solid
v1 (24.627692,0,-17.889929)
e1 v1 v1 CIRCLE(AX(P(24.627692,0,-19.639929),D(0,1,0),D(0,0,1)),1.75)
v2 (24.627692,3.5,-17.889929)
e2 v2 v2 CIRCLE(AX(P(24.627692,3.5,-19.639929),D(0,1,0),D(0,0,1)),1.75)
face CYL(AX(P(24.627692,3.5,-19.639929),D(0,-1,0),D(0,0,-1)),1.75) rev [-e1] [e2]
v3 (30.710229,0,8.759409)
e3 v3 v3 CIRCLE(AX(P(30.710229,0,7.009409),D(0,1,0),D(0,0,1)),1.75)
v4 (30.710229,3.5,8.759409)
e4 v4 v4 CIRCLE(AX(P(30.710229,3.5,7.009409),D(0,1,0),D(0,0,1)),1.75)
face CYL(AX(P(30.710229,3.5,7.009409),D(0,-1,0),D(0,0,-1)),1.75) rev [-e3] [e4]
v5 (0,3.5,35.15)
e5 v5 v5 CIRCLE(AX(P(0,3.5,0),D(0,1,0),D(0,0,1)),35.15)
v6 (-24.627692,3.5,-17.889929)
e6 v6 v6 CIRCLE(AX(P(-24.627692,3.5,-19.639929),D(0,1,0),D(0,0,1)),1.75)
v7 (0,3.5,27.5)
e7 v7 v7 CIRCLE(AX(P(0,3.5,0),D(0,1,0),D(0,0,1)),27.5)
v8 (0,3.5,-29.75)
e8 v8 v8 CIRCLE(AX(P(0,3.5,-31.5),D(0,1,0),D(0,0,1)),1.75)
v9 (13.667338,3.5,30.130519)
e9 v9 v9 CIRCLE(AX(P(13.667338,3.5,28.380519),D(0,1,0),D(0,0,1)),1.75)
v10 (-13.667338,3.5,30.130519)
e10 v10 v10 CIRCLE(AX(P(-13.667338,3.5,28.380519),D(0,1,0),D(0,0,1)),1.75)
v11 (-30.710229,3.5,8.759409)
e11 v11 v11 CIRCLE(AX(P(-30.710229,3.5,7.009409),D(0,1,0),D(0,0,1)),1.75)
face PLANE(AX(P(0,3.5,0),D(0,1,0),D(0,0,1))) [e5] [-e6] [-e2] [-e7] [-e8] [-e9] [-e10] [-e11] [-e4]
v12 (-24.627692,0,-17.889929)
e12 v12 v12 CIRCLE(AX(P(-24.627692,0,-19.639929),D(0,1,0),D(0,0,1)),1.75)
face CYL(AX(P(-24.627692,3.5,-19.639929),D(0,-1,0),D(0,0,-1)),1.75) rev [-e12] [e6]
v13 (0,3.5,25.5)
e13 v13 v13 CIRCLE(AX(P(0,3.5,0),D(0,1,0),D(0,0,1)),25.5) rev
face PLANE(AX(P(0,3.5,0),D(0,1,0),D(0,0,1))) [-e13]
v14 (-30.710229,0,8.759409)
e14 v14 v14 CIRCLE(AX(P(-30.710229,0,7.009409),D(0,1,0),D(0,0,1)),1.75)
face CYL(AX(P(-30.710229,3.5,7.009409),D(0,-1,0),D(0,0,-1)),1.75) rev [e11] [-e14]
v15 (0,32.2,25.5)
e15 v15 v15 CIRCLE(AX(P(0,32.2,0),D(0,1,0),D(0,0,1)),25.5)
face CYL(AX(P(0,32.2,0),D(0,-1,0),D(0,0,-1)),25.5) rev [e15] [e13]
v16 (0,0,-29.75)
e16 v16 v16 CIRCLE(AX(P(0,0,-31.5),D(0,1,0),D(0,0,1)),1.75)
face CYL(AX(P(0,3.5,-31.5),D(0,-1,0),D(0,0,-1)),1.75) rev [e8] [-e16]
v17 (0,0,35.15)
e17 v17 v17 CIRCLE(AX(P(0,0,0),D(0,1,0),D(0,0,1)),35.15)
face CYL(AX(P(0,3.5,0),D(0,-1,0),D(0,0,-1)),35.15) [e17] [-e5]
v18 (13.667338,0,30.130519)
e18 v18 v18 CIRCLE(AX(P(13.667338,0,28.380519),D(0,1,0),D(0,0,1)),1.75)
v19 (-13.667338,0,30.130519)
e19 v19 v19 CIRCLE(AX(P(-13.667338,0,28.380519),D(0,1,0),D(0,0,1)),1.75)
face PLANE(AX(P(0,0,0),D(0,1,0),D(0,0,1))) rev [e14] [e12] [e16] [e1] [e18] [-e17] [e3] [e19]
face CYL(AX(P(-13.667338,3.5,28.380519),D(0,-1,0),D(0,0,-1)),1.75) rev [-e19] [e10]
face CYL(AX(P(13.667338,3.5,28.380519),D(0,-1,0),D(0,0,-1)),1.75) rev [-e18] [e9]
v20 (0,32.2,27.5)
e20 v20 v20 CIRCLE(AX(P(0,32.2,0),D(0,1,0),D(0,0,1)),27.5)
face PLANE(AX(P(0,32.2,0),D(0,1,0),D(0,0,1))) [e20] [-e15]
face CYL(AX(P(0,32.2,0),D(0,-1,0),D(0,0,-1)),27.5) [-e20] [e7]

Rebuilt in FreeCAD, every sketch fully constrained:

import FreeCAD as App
import Part
import Sketcher

doc = App.newDocument("Part")
body = doc.addObject("PartDesign::Body", "Body")

sketch1 = doc.addObject("Sketcher::SketchObject", "Sketch")
body.addObject(sketch1)
sketch1.AttachmentSupport = (doc.XZ_Plane, [""])
sketch1.MapMode = "FlatFace"
sketch1.addGeometry(Part.Circle(App.Vector(0, 0, 0), App.Vector(0, 0, 1), 35.1), False)
sketch1.addGeometry(Part.Circle(App.Vector(-13.7, 28.4, 0), App.Vector(0, 0, 1), 1.8), False)
sketch1.addGeometry(Part.Circle(App.Vector(-30.7, 7, 0), App.Vector(0, 0, 1), 1.8), False)
sketch1.addGeometry(Part.Circle(App.Vector(13.7, 28.4, 0), App.Vector(0, 0, 1), 1.8), False)
sketch1.addGeometry(Part.Circle(App.Vector(30.7, 7, 0), App.Vector(0, 0, 1), 1.8), False)
sketch1.addGeometry(Part.Circle(App.Vector(-24.6, -19.6, 0), App.Vector(0, 0, 1), 1.8), False)
sketch1.addGeometry(Part.Circle(App.Vector(0, -31.5, 0), App.Vector(0, 0, 1), 1.8), False)
sketch1.addGeometry(Part.Circle(App.Vector(24.6, -19.6, 0), App.Vector(0, 0, 1), 1.8), False)
sketch1.addConstraint(Sketcher.Constraint("Coincident", 0, 3, -1, 1))
sketch1.addConstraint(Sketcher.Constraint("Equal", 1, 2))
sketch1.addConstraint(Sketcher.Constraint("Equal", 2, 3))
sketch1.addConstraint(Sketcher.Constraint("Equal", 3, 4))
sketch1.addConstraint(Sketcher.Constraint("Equal", 4, 5))
sketch1.addConstraint(Sketcher.Constraint("Equal", 5, 6))
sketch1.addConstraint(Sketcher.Constraint("Equal", 6, 7))
sketch1.addConstraint(Sketcher.Constraint("Symmetric", 1, 3, 3, 3, -2))
sketch1.addConstraint(Sketcher.Constraint("Symmetric", 2, 3, 4, 3, -2))
sketch1.addConstraint(Sketcher.Constraint("Symmetric", 5, 3, 7, 3, -2))
sketch1.addConstraint(Sketcher.Constraint("PointOnObject", 6, 3, -2))
sketch1.addConstraint(Sketcher.Constraint("Diameter", 0, 70.3))
sketch1.addConstraint(Sketcher.Constraint("Diameter", 1, 3.5))
sketch1.addConstraint(Sketcher.Constraint("DistanceY", 6, 3, -1, 1, 31.5))
sketch1.addConstraint(Sketcher.Constraint("DistanceY", -1, 1, 1, 3, 28.380519))
sketch1.addConstraint(Sketcher.Constraint("DistanceX", 2, 3, -1, 1, 30.710229))
sketch1.addConstraint(Sketcher.Constraint("DistanceY", -1, 1, 2, 3, 7.009409))
sketch1.addConstraint(Sketcher.Constraint("DistanceX", 5, 3, -1, 1, 24.627692))
sketch1.addConstraint(Sketcher.Constraint("DistanceY", 5, 3, -1, 1, 19.639929))
sketch1.addConstraint(Sketcher.Constraint("DistanceX", 2, 3, 1, 3, 17.042891))
pad1 = doc.addObject("PartDesign::Pad", "Pad")
body.addObject(pad1)
pad1.Profile = sketch1
pad1.Length = 3.5
pad1.Reversed = True

sketch2 = doc.addObject("Sketcher::SketchObject", "Sketch001")
body.addObject(sketch2)
sketch2.AttachmentSupport = (doc.XZ_Plane, [""])
sketch2.MapMode = "FlatFace"
sketch2.AttachmentOffset = App.Placement(App.Vector(0, 0, -3.5), App.Rotation())
sketch2.addGeometry(Part.Circle(App.Vector(0, 0, 0), App.Vector(0, 0, 1), 28), False)
sketch2.addGeometry(Part.Circle(App.Vector(0, 0, 0), App.Vector(0, 0, 1), 26), False)
sketch2.addConstraint(Sketcher.Constraint("Coincident", 0, 3, -1, 1))
sketch2.addConstraint(Sketcher.Constraint("Coincident", 1, 3, -1, 1))
sketch2.addConstraint(Sketcher.Constraint("Diameter", 0, 55.0))
sketch2.addConstraint(Sketcher.Constraint("Diameter", 1, 51.0))
pad2 = doc.addObject("PartDesign::Pad", "Pad001")
body.addObject(pad2)
pad2.Profile = sketch2
pad2.Length = 28.7
pad2.Reversed = True

doc.recompute()
